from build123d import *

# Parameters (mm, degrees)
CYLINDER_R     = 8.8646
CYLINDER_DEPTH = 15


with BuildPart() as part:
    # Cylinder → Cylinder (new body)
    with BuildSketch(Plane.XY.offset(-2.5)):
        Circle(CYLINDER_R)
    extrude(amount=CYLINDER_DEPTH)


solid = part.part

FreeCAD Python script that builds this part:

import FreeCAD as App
import Part
import Sketcher

V = App.Vector
Q = App.Units.Quantity

doc = App.newDocument("Part")
body = doc.addObject("PartDesign::Body", "Body")

# Sketch on XY plane
sketch1 = body.newObject("Sketcher::SketchObject", "Sketch")
sketch1.AttachmentSupport = (doc.getObject("XY_Plane"), [""])
sketch1.MapMode = "FlatFace"
sketch1.AttachmentOffset = App.Placement(V(0, 0, -2.5), App.Rotation())
sketch1.addGeometry(Part.Circle(V(0, 0, 0), V(0, 0, 1), 8.8646), False)
sketch1.addConstraint(Sketcher.Constraint("Coincident", 0, 3, -1, 1))
sketch1.addConstraint(Sketcher.Constraint("Diameter", 0, Q("17.7292 mm")))
pad1 = body.newObject("PartDesign::Pad", "Pad")
pad1.Profile = sketch1
pad1.Length = 15

doc.recompute()
